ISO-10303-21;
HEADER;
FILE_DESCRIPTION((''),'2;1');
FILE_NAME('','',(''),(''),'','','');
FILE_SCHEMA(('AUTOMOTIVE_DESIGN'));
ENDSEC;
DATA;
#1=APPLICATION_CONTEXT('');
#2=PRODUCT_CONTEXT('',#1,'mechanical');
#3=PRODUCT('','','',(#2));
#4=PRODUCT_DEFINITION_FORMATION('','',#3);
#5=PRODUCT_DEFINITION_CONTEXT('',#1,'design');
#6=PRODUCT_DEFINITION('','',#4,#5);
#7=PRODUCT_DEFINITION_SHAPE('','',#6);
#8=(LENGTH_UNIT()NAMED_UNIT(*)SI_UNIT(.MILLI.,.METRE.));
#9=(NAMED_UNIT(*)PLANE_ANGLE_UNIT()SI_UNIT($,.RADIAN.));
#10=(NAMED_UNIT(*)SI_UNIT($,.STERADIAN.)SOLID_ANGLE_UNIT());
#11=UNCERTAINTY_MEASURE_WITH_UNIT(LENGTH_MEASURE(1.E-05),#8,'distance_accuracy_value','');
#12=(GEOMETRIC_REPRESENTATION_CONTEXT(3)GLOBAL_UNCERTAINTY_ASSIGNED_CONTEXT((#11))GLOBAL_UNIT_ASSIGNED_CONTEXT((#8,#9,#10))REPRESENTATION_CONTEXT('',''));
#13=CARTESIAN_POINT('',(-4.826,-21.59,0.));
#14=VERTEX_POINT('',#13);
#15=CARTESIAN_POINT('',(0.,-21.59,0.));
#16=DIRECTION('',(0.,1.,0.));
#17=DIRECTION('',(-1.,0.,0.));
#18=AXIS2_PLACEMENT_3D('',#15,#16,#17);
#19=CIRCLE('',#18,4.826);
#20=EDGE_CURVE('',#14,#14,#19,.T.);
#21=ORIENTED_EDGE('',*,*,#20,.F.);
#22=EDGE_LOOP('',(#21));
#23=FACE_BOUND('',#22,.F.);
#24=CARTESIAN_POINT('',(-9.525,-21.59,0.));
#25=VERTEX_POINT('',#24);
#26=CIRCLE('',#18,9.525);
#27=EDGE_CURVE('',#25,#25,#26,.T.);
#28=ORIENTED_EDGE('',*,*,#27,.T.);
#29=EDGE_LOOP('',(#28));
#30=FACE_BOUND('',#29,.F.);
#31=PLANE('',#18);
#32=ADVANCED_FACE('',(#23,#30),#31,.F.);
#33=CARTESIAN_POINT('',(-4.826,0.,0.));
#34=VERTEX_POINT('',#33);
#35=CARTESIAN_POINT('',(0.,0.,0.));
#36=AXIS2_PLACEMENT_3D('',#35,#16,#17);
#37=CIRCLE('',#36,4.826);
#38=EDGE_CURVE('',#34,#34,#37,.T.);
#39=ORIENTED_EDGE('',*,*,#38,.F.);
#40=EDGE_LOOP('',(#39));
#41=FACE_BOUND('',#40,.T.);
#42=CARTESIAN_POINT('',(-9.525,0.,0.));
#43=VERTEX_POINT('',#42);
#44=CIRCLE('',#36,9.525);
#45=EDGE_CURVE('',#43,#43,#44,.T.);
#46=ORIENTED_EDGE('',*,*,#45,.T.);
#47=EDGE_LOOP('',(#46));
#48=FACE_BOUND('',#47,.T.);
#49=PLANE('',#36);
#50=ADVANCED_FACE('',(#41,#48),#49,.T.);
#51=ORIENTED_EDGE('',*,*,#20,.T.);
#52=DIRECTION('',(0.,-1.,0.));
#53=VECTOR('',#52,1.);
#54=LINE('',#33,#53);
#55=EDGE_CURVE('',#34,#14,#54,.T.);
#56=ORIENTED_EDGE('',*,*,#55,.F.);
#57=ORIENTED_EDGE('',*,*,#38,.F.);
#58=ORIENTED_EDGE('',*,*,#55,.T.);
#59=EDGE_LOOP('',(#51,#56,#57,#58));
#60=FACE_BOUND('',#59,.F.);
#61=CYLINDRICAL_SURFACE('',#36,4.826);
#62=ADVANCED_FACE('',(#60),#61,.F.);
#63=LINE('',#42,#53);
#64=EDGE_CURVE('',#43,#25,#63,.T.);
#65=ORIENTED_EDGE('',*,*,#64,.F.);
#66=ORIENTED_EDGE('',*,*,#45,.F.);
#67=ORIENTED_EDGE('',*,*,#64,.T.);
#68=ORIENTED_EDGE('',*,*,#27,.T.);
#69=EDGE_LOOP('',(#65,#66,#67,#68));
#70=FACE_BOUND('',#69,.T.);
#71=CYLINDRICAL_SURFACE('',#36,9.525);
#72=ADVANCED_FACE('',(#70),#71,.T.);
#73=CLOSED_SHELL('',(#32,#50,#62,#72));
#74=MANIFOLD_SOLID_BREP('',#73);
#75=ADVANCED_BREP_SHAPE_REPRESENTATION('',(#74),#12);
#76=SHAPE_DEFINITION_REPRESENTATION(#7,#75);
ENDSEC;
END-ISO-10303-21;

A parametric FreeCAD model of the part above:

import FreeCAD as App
import Part
import Sketcher
from FreeCAD import Vector
Q = App.Units.Quantity

doc = App.newDocument("Part")
params = doc.addObject("Spreadsheet::Sheet", "Params")
for row, (alias, value) in enumerate([
    ("sketch1_diameter", "0.75 in"),
    ("sketch1_diameter2", "0.38 in"),
    ("pad1_length", "0.85 in"),
], start=1):
    params.set(f"A{row}", alias)
    params.set(f"B{row}", "=" + value)
    params.setAlias(f"B{row}", alias)

body = doc.addObject("PartDesign::Body", "Body")

# Sketch on XZ plane
sketch1 = body.newObject("Sketcher::SketchObject", "Sketch")
sketch1.AttachmentSupport = (doc.getObject("XZ_Plane"), [""])
sketch1.MapMode = "FlatFace"
sketch1.addGeometry([
    Part.Circle(Vector(0, 0, 0), Vector(0, 0, 1), 9.5),
    Part.Circle(Vector(0, 0, 0), Vector(0, 0, 1), 4.8),
], False)
sketch1.addConstraint([
    Sketcher.Constraint("Coincident", 0, 3, -1, 1),
    Sketcher.Constraint("Coincident", 1, 3, -1, 1),
    Sketcher.Constraint("Diameter", 0, Q("0.75 in")),
    Sketcher.Constraint("Diameter", 1, Q("0.38 in")),
])
sketch1.setExpression("Constraints[2]", "Params.sketch1_diameter")
sketch1.setExpression("Constraints[3]", "Params.sketch1_diameter2")
pad1 = body.newObject("PartDesign::Pad", "Pad")
pad1.Profile = sketch1
pad1.setExpression("Length", "Params.pad1_length")

doc.recompute()
